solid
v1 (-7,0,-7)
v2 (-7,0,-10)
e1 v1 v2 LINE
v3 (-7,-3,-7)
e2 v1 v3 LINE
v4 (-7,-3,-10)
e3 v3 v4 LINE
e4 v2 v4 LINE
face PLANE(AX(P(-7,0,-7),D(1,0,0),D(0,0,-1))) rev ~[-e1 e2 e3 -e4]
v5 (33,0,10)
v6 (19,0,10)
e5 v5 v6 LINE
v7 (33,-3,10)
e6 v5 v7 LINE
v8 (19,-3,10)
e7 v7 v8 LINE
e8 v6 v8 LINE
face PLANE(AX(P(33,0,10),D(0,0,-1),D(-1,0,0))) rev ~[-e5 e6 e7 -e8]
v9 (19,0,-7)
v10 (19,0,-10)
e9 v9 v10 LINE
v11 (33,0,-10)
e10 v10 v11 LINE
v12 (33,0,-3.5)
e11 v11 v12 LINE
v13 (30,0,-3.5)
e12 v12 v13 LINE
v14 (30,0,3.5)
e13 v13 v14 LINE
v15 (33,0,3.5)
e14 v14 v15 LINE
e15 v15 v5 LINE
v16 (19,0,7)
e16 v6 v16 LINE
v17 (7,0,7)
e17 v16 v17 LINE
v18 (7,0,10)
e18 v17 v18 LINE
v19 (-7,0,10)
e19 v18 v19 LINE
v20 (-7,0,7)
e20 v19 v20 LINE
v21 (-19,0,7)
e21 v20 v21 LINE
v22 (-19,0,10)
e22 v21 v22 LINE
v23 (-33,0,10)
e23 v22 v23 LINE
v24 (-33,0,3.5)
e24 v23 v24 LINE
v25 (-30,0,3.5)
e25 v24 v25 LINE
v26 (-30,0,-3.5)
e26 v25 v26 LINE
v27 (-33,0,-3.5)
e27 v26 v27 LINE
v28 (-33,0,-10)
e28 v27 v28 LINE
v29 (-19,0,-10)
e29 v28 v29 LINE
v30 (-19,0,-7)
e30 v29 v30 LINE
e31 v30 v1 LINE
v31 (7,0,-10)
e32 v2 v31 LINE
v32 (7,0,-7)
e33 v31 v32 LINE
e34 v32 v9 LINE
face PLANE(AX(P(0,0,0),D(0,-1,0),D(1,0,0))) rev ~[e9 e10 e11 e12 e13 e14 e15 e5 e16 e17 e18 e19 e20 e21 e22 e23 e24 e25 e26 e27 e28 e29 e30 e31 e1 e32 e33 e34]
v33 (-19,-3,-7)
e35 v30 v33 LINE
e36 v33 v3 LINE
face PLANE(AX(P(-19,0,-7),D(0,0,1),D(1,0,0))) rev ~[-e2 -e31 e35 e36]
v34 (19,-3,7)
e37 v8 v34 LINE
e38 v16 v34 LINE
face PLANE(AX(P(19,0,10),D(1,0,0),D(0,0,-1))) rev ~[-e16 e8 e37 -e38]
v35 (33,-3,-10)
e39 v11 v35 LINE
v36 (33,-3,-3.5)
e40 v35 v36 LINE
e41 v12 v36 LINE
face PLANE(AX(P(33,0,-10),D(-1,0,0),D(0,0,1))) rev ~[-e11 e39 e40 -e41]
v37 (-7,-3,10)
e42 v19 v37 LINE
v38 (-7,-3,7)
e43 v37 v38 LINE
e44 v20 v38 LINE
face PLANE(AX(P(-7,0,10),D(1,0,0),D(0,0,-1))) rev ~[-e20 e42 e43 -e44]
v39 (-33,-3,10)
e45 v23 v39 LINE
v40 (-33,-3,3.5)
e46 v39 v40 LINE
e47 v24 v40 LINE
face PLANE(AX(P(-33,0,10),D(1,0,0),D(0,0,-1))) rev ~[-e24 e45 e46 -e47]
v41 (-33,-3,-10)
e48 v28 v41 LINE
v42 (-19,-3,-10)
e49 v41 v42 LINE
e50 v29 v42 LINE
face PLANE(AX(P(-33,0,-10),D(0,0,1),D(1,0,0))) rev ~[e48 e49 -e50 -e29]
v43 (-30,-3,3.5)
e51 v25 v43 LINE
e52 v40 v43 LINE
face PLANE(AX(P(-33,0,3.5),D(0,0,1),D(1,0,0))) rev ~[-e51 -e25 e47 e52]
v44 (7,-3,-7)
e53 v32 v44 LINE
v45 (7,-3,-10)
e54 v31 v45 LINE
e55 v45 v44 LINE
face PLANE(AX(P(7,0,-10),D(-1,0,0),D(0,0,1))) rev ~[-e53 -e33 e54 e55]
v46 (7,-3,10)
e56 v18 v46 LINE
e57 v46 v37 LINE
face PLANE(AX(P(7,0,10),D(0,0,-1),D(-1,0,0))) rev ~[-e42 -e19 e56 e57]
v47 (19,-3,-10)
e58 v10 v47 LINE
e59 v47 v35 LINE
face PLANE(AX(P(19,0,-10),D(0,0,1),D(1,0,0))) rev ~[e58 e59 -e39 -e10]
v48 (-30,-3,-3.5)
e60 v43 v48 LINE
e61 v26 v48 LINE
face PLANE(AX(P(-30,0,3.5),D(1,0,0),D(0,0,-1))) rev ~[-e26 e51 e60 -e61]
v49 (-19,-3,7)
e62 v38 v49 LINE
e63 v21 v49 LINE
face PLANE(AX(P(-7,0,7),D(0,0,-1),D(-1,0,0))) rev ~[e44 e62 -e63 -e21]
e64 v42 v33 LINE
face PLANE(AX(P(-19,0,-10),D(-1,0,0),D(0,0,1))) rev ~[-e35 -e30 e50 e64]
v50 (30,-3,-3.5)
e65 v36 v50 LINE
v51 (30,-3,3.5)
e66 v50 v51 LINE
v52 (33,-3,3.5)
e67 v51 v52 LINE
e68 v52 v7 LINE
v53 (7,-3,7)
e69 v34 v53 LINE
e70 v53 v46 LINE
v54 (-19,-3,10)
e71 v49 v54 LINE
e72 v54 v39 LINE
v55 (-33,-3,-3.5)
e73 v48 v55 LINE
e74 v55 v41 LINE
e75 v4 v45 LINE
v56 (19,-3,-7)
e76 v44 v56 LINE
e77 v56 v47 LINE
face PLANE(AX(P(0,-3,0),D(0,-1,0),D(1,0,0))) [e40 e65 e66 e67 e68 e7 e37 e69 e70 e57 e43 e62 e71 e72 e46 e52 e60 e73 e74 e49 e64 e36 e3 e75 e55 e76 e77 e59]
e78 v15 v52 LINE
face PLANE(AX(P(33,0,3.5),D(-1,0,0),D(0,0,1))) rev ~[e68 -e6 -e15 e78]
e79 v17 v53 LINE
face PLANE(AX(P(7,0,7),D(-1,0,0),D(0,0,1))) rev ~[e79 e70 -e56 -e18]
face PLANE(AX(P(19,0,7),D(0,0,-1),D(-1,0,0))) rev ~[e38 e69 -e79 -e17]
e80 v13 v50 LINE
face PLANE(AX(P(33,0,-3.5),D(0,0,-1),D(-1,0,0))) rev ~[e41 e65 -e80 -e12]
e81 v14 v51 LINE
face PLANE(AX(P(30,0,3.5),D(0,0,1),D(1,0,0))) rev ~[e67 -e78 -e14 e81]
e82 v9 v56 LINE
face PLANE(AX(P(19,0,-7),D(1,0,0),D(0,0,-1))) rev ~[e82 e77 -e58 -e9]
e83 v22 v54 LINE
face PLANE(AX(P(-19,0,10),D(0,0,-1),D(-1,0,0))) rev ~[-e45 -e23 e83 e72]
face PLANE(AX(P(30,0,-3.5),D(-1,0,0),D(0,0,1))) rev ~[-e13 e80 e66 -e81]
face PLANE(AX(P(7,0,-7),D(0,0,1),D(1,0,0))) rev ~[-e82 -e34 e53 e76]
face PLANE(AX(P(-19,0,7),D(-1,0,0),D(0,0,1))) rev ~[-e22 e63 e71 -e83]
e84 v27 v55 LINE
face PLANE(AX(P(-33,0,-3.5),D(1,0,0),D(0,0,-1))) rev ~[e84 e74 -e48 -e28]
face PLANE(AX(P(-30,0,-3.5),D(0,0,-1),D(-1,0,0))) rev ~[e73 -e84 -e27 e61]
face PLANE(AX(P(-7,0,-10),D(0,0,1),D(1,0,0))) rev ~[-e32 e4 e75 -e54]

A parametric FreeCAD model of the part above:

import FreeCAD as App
import Part
import Sketcher

V = App.Vector


def add_polygon(sketch, points):
    """Adds a closed chain of lines whose ends are joined by coincident constraints."""
    first, n = sketch.GeometryCount, len(points)
    for a, b in zip(points, points[1:] + points[:1]):
        sketch.addGeometry(Part.LineSegment(App.Vector(*a, 0), App.Vector(*b, 0)), False)
    for i in range(n):
        sketch.addConstraint(Sketcher.Constraint("Coincident", first + i, 2, first + (i + 1) % n, 1))

doc = App.newDocument("Part")
body = doc.addObject("PartDesign::Body", "Body")

sketch1 = body.newObject("Sketcher::SketchObject", "Sketch")
sketch1.AttachmentSupport = (doc.getObject("XZ_Plane"), [""])
sketch1.MapMode = "FlatFace"
add_polygon(sketch1, [(-19, 10), (-33, 10), (-33, 3.5), (-30, 3.5), (-30, -3.5), (-33, -3.5), (-33, -10), (-19, -10), (-19, -7), (-7, -7), (-7, -10), (7, -10), (7, -7), (19, -7), (19, -10), (33, -10), (33, -3.5), (30, -3.5), (30, 3.5), (33, 3.5), (33, 10), (19, 10), (19, 7), (7, 7), (7, 10), (-7, 10), (-7, 7), (-19, 7)])
sketch1.addConstraint([
    Sketcher.Constraint("Horizontal", 0),
    Sketcher.Constraint("Vertical", 1),
    Sketcher.Constraint("Horizontal", 2),
    Sketcher.Constraint("Vertical", 3),
    Sketcher.Constraint("Horizontal", 4),
    Sketcher.Constraint("Vertical", 5),
    Sketcher.Constraint("Horizontal", 6),
    Sketcher.Constraint("Vertical", 7),
    Sketcher.Constraint("Horizontal", 8),
    Sketcher.Constraint("Vertical", 9),
    Sketcher.Constraint("Horizontal", 10),
    Sketcher.Constraint("Vertical", 11),
    Sketcher.Constraint("Horizontal", 12),
    Sketcher.Constraint("Vertical", 13),
    Sketcher.Constraint("Horizontal", 14),
    Sketcher.Constraint("Vertical", 15),
    Sketcher.Constraint("Horizontal", 16),
    Sketcher.Constraint("Vertical", 17),
    Sketcher.Constraint("Horizontal", 18),
    Sketcher.Constraint("Vertical", 19),
    Sketcher.Constraint("Horizontal", 20),
    Sketcher.Constraint("Vertical", 21),
    Sketcher.Constraint("Horizontal", 22),
    Sketcher.Constraint("Vertical", 23),
    Sketcher.Constraint("Horizontal", 24),
    Sketcher.Constraint("Vertical", 25),
    Sketcher.Constraint("Horizontal", 26),
    Sketcher.Constraint("Vertical", 27),
    Sketcher.Constraint("Symmetric", 0, 2, 14, 2, -1, 1),
    Sketcher.Constraint("Symmetric", 2, 2, 16, 2, -1, 1),
    Sketcher.Constraint("Symmetric", 4, 2, 18, 2, -1, 1),
    Sketcher.Constraint("Symmetric", 6, 2, 20, 2, -1, 1),
    Sketcher.Constraint("Symmetric", 8, 2, 22, 2, -1, 1),
    Sketcher.Constraint("Symmetric", 10, 2, 24, 2, -1, 1),
    Sketcher.Constraint("Symmetric", 12, 2, 26, 2, -1, 1),
    Sketcher.Constraint("Symmetric", 8, 2, 11, 2, -2),
    Sketcher.Constraint("Symmetric", 6, 2, 13, 2, -2),
    Sketcher.Constraint("Symmetric", 4, 2, 15, 2, -2),
    Sketcher.Constraint("Horizontal", 6, 2, 9, 2),
    Sketcher.Constraint("Equal", 6, 10),
    Sketcher.Constraint("Equal", 18, 7),
    Sketcher.Constraint("DistanceX", 0, 2, 0, 1, 14.0),
    Sketcher.Constraint("DistanceX", 2, 1, 2, 2, 3.0),
    Sketcher.Constraint("DistanceX", 8, 1, 8, 2, 12.0),
    Sketcher.Constraint("DistanceY", 3, 2, 3, 1, 7.0),
    Sketcher.Constraint("DistanceY", 1, 2, 1, 1, 6.5),
])
pad1 = body.newObject("PartDesign::Pad", "Pad")
pad1.Profile = sketch1
pad1.Length = 3

doc.recompute()
